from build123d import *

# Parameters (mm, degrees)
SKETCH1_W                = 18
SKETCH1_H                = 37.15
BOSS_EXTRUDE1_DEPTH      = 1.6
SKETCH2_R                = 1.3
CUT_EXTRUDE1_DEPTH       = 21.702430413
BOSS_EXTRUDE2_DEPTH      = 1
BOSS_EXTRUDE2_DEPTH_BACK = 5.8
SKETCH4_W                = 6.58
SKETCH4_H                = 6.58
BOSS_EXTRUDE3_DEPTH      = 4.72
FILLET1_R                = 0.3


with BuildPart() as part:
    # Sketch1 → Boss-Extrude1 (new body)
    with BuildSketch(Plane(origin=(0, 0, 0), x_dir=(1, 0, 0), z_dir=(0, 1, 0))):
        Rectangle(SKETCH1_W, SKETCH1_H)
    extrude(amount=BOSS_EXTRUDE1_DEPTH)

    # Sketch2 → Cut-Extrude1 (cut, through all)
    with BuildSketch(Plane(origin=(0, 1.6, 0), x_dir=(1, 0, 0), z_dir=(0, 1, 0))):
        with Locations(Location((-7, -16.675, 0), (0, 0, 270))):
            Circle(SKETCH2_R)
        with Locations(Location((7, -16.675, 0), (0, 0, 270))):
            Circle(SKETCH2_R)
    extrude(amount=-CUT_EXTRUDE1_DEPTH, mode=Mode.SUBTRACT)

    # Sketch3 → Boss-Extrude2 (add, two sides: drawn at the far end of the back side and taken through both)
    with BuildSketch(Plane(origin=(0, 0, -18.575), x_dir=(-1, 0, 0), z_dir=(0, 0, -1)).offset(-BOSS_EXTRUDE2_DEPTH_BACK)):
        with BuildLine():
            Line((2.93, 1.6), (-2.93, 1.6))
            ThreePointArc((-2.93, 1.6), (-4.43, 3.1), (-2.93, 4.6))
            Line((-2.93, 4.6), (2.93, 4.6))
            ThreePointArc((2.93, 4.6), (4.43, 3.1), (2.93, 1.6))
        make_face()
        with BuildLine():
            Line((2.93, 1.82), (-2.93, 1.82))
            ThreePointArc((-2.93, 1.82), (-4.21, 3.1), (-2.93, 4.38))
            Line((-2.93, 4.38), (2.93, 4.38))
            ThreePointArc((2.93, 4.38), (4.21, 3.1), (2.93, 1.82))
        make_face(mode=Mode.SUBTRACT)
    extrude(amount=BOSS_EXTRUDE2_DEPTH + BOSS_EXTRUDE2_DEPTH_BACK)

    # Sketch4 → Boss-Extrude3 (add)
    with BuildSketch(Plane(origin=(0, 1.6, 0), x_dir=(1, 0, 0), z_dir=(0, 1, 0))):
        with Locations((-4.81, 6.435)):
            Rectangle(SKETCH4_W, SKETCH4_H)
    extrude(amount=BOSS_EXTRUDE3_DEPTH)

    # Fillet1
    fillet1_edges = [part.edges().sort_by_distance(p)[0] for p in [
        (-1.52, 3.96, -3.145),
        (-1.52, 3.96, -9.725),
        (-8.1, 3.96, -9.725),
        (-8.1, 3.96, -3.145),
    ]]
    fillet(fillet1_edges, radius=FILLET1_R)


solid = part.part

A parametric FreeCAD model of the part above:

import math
import FreeCAD as App
import Part
import Sketcher

V = App.Vector


def edges_at(feature, points):
    """Names of the edges that pass closest to the given points."""
    edges = feature.Shape.Edges
    near = lambda p: min(range(len(edges)), key=lambda i: edges[i].distToShape(Part.Vertex(*p))[0])
    return sorted({f"Edge{near(p) + 1}" for p in points})

doc = App.newDocument("Part")
body = doc.addObject("PartDesign::Body", "Body")

sketch1 = body.newObject("Sketcher::SketchObject", "Sketch")
sketch1.AttachmentSupport = (doc.getObject("XZ_Plane"), [""])
sketch1.MapMode = "FlatFace"
sketch1.addGeometry(Part.LineSegment(V(-9, -19, 0), V(-9, 19, 0)), False)
sketch1.addGeometry(Part.LineSegment(V(-9, 19, 0), V(9, 19, 0)), False)
sketch1.addGeometry(Part.LineSegment(V(9, 19, 0), V(9, -19, 0)), False)
sketch1.addGeometry(Part.LineSegment(V(9, -19, 0), V(-9, -19, 0)), False)
sketch1.addConstraint(Sketcher.Constraint("Coincident", 0, 2, 1, 1))
sketch1.addConstraint(Sketcher.Constraint("Coincident", 1, 2, 2, 1))
sketch1.addConstraint(Sketcher.Constraint("Coincident", 2, 2, 3, 1))
sketch1.addConstraint(Sketcher.Constraint("Coincident", 3, 2, 0, 1))
sketch1.addConstraint(Sketcher.Constraint("Vertical", 0))
sketch1.addConstraint(Sketcher.Constraint("Horizontal", 1))
sketch1.addConstraint(Sketcher.Constraint("Vertical", 2))
sketch1.addConstraint(Sketcher.Constraint("Horizontal", 3))
sketch1.addConstraint(Sketcher.Constraint("Symmetric", 0, 2, 2, 2, -1, 1))
sketch1.addConstraint(Sketcher.Constraint("DistanceX", 1, 1, 1, 2, 18.0))
sketch1.addConstraint(Sketcher.Constraint("DistanceY", 0, 1, 0, 2, 37.15))
pad1 = body.newObject("PartDesign::Pad", "Pad")
pad1.Profile = sketch1
pad1.Length = 1.6
pad1.Reversed = True

sketch2 = body.newObject("Sketcher::SketchObject", "Sketch001")
sketch2.AttachmentSupport = (doc.getObject("XZ_Plane"), [""])
sketch2.MapMode = "FlatFace"
sketch2.AttachmentOffset = App.Placement(V(0, 0, -1.6), App.Rotation())
sketch2.addGeometry(Part.Circle(V(-7, 16.7, 0), V(0, 0, 1), 1.3), False)
sketch2.addGeometry(Part.Circle(V(7, 16.7, 0), V(0, 0, 1), 1.3), False)
sketch2.addConstraint(Sketcher.Constraint("Equal", 0, 1))
sketch2.addConstraint(Sketcher.Constraint("Symmetric", 0, 3, 1, 3, -2))
sketch2.addConstraint(Sketcher.Constraint("Diameter", 0, 2.6))
sketch2.addConstraint(Sketcher.Constraint("DistanceX", 0, 3, -1, 1, 7.0))
sketch2.addConstraint(Sketcher.Constraint("DistanceY", -1, 1, 0, 3, 16.675))
pocket1 = body.newObject("PartDesign::Pocket", "Pocket")
pocket1.Profile = sketch2
pocket1.Type = "ThroughAll"
pocket1.Reversed = True

sketch3 = body.newObject("Sketcher::SketchObject", "Sketch002")
sketch3.AttachmentSupport = (doc.getObject("XY_Plane"), [""])
sketch3.MapMode = "FlatFace"
sketch3.AttachmentOffset = App.Placement(V(0, 0, -18.575), App.Rotation())
sketch3.addGeometry(Part.LineSegment(V(2.9, 1.6, 0), V(-2.9, 1.6, 0)), False)
sketch3.addGeometry(Part.ArcOfCircle(Part.Circle(V(-2.9, 3.1, 0), V(0, 0, 1), 1.5), math.radians(90), math.radians(270)), False)
sketch3.addGeometry(Part.LineSegment(V(-2.9, 4.6, 0), V(2.9, 4.6, 0)), False)
sketch3.addGeometry(Part.ArcOfCircle(Part.Circle(V(2.9, 3.1, 0), V(0, 0, 1), 1.5), math.radians(-90), math.radians(90)), False)
sketch3.addGeometry(Part.LineSegment(V(-2.9, 1.8, 0), V(2.9, 1.8, 0)), False)
sketch3.addGeometry(Part.ArcOfCircle(Part.Circle(V(2.9, 3.1, 0), V(0, 0, 1), 1.3), math.radians(-90), math.radians(90)), False)
sketch3.addGeometry(Part.LineSegment(V(2.9, 4.4, 0), V(-2.9, 4.4, 0)), False)
sketch3.addGeometry(Part.ArcOfCircle(Part.Circle(V(-2.9, 3.1, 0), V(0, 0, 1), 1.3), math.radians(90), math.radians(270)), False)
sketch3.addConstraint(Sketcher.Constraint("Tangent", 0, 2, 1, 2))
sketch3.addConstraint(Sketcher.Constraint("Tangent", 1, 1, 2, 1))
sketch3.addConstraint(Sketcher.Constraint("Tangent", 2, 2, 3, 2))
sketch3.addConstraint(Sketcher.Constraint("Tangent", 3, 1, 0, 1))
sketch3.addConstraint(Sketcher.Constraint("Tangent", 4, 2, 5, 1))
sketch3.addConstraint(Sketcher.Constraint("Tangent", 5, 2, 6, 1))
sketch3.addConstraint(Sketcher.Constraint("Tangent", 6, 2, 7, 1))
sketch3.addConstraint(Sketcher.Constraint("Tangent", 7, 2, 4, 1))
sketch3.addConstraint(Sketcher.Constraint("Horizontal", 0))
sketch3.addConstraint(Sketcher.Constraint("Horizontal", 2))
sketch3.addConstraint(Sketcher.Constraint("Horizontal", 4))
sketch3.addConstraint(Sketcher.Constraint("Horizontal", 6))
sketch3.addConstraint(Sketcher.Constraint("Coincident", 5, 3, 3, 3))
sketch3.addConstraint(Sketcher.Constraint("Vertical", 7, 3, 0, 2))
sketch3.addConstraint(Sketcher.Constraint("Radius", 1, 1.5))
sketch3.addConstraint(Sketcher.Constraint("Radius", 5, 1.28))
sketch3.addConstraint(Sketcher.Constraint("DistanceX", 0, 2, 0, 1, 5.86))
sketch3.addConstraint(Sketcher.Constraint("DistanceY", -1, 1, 1, 3, 3.1))
sketch3.addConstraint(Sketcher.Constraint("DistanceX", 1, 3, -1, 1, 2.93))
pad2 = body.newObject("PartDesign::Pad", "Pad001")
pad2.Profile = sketch3
pad2.Type = "TwoLengths"
pad2.Length = 1
pad2.Length2 = 5.8
pad2.Reversed = True

sketch4 = body.newObject("Sketcher::SketchObject", "Sketch003")
sketch4.AttachmentSupport = (doc.getObject("XZ_Plane"), [""])
sketch4.MapMode = "FlatFace"
sketch4.AttachmentOffset = App.Placement(V(0, 0, -1.6), App.Rotation())
sketch4.addGeometry(Part.LineSegment(V(-8, -10, 0), V(-8, -3, 0)), False)
sketch4.addGeometry(Part.LineSegment(V(-8, -3, 0), V(-2, -3, 0)), False)
sketch4.addGeometry(Part.LineSegment(V(-2, -3, 0), V(-2, -10, 0)), False)
sketch4.addGeometry(Part.LineSegment(V(-2, -10, 0), V(-8, -10, 0)), False)
sketch4.addConstraint(Sketcher.Constraint("Coincident", 0, 2, 1, 1))
sketch4.addConstraint(Sketcher.Constraint("Coincident", 1, 2, 2, 1))
sketch4.addConstraint(Sketcher.Constraint("Coincident", 2, 2, 3, 1))
sketch4.addConstraint(Sketcher.Constraint("Coincident", 3, 2, 0, 1))
sketch4.addConstraint(Sketcher.Constraint("Vertical", 0))
sketch4.addConstraint(Sketcher.Constraint("Horizontal", 1))
sketch4.addConstraint(Sketcher.Constraint("Vertical", 2))
sketch4.addConstraint(Sketcher.Constraint("Horizontal", 3))
sketch4.addConstraint(Sketcher.Constraint("Equal", 3, 0))
sketch4.addConstraint(Sketcher.Constraint("DistanceX", 1, 1, 1, 2, 6.58))
sketch4.addConstraint(Sketcher.Constraint("DistanceX", 0, 2, -1, 1, 8.1))
sketch4.addConstraint(Sketcher.Constraint("DistanceY", 0, 2, -1, 1, 3.145))
pad3 = body.newObject("PartDesign::Pad", "Pad002")
pad3.Profile = sketch4
pad3.Length = 4.72
pad3.Reversed = True
doc.recompute()

fillet = body.newObject("PartDesign::Fillet", "Fillet")
fillet.Base = (pad3, edges_at(pad3, [
    (-1.52, 3.96, -3.145),
    (-1.52, 3.96, -9.725),
    (-8.1, 3.96, -9.725),
    (-8.1, 3.96, -3.145),
]))
fillet.Radius = 0.3

doc.recompute()
